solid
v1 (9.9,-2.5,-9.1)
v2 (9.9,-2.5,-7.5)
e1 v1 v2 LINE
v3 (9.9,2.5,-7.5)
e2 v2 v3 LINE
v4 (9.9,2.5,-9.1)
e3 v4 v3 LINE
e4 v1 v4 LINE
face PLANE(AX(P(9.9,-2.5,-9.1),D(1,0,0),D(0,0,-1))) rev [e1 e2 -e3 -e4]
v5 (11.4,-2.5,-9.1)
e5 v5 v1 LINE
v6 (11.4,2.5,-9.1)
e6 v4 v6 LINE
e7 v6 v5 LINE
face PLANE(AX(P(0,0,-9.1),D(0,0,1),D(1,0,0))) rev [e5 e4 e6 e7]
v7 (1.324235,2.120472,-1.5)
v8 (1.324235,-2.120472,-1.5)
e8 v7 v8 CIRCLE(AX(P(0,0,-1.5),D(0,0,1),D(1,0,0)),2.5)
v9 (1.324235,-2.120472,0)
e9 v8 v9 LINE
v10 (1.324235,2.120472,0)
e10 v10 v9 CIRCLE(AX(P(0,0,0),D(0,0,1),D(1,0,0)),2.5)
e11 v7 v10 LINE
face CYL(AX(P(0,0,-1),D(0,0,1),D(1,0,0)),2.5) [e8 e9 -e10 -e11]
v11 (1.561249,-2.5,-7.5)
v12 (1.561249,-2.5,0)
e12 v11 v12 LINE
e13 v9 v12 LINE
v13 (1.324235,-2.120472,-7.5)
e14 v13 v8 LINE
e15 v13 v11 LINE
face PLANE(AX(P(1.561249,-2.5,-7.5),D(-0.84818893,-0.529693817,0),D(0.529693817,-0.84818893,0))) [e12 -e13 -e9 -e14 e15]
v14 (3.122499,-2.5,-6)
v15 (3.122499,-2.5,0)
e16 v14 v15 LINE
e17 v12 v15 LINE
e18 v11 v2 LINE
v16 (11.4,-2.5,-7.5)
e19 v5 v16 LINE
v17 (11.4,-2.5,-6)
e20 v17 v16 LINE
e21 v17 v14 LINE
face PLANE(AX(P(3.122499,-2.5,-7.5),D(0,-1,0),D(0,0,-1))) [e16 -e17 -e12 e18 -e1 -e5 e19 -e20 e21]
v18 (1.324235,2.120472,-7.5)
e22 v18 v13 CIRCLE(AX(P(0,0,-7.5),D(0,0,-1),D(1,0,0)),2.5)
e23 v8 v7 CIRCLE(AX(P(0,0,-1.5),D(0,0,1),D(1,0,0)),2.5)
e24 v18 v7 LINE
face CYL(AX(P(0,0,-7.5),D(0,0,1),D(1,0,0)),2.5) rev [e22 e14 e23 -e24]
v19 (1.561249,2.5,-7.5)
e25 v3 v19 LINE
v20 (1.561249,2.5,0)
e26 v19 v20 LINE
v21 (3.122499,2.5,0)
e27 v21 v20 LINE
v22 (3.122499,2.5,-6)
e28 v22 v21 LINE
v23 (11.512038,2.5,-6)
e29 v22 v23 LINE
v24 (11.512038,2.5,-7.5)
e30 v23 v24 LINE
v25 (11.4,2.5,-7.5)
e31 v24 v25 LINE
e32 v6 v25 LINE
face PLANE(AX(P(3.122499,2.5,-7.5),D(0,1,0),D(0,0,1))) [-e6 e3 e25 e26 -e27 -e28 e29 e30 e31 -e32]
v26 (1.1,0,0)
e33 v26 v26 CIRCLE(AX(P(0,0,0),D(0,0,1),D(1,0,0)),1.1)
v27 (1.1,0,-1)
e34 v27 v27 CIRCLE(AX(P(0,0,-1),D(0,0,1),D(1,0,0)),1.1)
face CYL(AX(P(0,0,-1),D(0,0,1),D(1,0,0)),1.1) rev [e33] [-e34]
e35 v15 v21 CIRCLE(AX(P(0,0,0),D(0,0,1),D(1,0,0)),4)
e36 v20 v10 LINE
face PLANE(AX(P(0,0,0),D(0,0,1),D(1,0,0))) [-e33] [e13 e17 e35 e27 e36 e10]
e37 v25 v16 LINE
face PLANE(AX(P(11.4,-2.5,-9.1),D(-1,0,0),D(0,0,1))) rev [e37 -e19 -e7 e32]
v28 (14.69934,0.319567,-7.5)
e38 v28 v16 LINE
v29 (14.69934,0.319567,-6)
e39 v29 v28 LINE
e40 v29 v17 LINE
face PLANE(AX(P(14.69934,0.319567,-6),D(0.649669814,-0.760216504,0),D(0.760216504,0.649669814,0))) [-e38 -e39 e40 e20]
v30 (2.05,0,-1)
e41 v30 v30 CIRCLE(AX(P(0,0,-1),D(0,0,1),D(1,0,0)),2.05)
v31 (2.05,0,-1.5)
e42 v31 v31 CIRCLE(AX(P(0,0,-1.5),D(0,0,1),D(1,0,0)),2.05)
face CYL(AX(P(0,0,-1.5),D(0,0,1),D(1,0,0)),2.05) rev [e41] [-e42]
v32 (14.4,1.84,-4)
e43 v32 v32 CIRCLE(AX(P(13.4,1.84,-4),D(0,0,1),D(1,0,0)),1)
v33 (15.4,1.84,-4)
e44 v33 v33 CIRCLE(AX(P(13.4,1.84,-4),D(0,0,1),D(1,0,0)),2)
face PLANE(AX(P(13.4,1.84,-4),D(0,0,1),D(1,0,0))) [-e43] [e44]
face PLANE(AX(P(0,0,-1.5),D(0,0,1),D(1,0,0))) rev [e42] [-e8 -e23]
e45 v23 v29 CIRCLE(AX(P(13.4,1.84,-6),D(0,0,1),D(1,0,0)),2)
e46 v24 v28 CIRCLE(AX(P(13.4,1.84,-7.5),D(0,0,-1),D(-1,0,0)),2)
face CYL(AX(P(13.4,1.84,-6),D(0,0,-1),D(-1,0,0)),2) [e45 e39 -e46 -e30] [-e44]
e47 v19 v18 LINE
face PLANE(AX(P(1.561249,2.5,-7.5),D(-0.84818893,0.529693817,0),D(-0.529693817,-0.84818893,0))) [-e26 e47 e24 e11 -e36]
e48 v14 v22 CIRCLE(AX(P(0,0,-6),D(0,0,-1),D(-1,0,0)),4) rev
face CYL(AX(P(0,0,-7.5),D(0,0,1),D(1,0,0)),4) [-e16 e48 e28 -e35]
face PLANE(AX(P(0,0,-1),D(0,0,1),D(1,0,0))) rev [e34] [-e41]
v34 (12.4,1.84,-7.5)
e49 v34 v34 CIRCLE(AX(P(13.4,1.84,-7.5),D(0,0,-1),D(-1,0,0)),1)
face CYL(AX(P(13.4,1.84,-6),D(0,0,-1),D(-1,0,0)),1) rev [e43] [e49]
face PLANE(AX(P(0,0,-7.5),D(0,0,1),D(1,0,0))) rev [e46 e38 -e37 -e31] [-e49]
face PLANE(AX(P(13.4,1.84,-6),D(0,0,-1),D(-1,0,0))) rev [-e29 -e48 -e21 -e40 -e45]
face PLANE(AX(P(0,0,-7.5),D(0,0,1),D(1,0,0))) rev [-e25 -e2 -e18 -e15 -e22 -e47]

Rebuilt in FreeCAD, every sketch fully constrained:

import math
import FreeCAD as App
import Part
import Sketcher

V = App.Vector
Q = App.Units.Quantity


def add_polygon(sketch, points):
    """Adds a closed chain of lines whose ends are joined by coincident constraints."""
    first, n = sketch.GeometryCount, len(points)
    for a, b in zip(points, points[1:] + points[:1]):
        sketch.addGeometry(Part.LineSegment(App.Vector(*a, 0), App.Vector(*b, 0)), False)
    for i in range(n):
        sketch.addConstraint(Sketcher.Constraint("Coincident", first + i, 2, first + (i + 1) % n, 1))

doc = App.newDocument("Part")
params = doc.addObject("Spreadsheet::Sheet", "Params")
for row, (alias, value) in enumerate([
    ("sketch1_diameter", "5 mm"),
    ("sketch1_diameter2", "2.2 mm"),
    ("pad1_length", "1 mm"),
    ("sketch2_diameter", "5 mm"),
    ("sketch2_diameter2", "4.1 mm"),
    ("pad2_length", "0.5 mm"),
    ("sketch3_radius", "4 mm"),
    ("sketch3_radius2", "2.5 mm"),
    ("pad3_length", "7.5 mm"),
    ("sketch4_diameter", "2 mm"),
    ("sketch4_radius", "2 mm"),
    ("sketch4_height", "5 mm"),
    ("sketch4_length", "4.34 mm"),
    ("pad4_length", "1.5 mm"),
    ("sketch5_height", "5 mm"),
    ("sketch5_width", "1.5 mm"),
    ("pad5_length", "1.6 mm"),
    ("sketch6_diameter", "4 mm"),
    ("sketch6_diameter2", "2 mm"),
    ("pad6_length", "2 mm"),
], start=1):
    params.set(f"A{row}", alias)
    params.set(f"B{row}", "=" + value)
    params.setAlias(f"B{row}", alias)

body = doc.addObject("PartDesign::Body", "Body")

sketch1 = body.newObject("Sketcher::SketchObject", "Sketch")
sketch1.AttachmentSupport = (doc.getObject("XY_Plane"), [""])
sketch1.MapMode = "FlatFace"
sketch1.addGeometry([
    Part.Circle(V(0, 0, 0), V(0, 0, 1), 2.5),
    Part.Circle(V(0, 0, 0), V(0, 0, 1), 1.1),
], False)
sketch1.addConstraint([
    Sketcher.Constraint("Coincident", 0, 3, -1, 1),
    Sketcher.Constraint("Coincident", 1, 3, -1, 1),
    Sketcher.Constraint("Diameter", 0, Q("5 mm")),
    Sketcher.Constraint("Diameter", 1, Q("2.2 mm")),
])
sketch1.setExpression("Constraints[2]", "Params.sketch1_diameter")
sketch1.setExpression("Constraints[3]", "Params.sketch1_diameter2")
pad1 = body.newObject("PartDesign::Pad", "Pad")
pad1.Profile = sketch1
pad1.setExpression("Length", "Params.pad1_length")
pad1.Reversed = True

sketch2 = body.newObject("Sketcher::SketchObject", "Sketch001")
sketch2.AttachmentSupport = (doc.getObject("XY_Plane"), [""])
sketch2.MapMode = "FlatFace"
sketch2.AttachmentOffset = App.Placement(V(0, 0, -1), App.Rotation())
sketch2.addGeometry([
    Part.Circle(V(0, 0, 0), V(0, 0, 1), 2.5),
    Part.Circle(V(0, 0, 0), V(0, 0, 1), 2),
], False)
sketch2.addConstraint([
    Sketcher.Constraint("Coincident", 0, 3, -1, 1),
    Sketcher.Constraint("Coincident", 1, 3, -1, 1),
    Sketcher.Constraint("Diameter", 0, Q("5 mm")),
    Sketcher.Constraint("Diameter", 1, Q("4.1 mm")),
])
sketch2.setExpression("Constraints[2]", "Params.sketch2_diameter")
sketch2.setExpression("Constraints[3]", "Params.sketch2_diameter2")
pad2 = body.newObject("PartDesign::Pad", "Pad001")
pad2.Profile = sketch2
pad2.setExpression("Length", "Params.pad2_length")
pad2.Reversed = True

sketch3 = body.newObject("Sketcher::SketchObject", "Sketch002")
sketch3.AttachmentSupport = (doc.getObject("XY_Plane"), [""])
sketch3.MapMode = "FlatFace"
sketch3.addGeometry([
    Part.LineSegment(V(1.56, -2.5, 0), V(3.12, -2.5, 0)),
    Part.ArcOfCircle(Part.Circle(V(0, 0, 0), V(0, 0, 1), 4), math.radians(-39), math.radians(39)),
    Part.LineSegment(V(3.12, 2.5, 0), V(1.56, 2.5, 0)),
    Part.LineSegment(V(1.56, 2.5, 0), V(1.32, 2.12, 0)),
    Part.ArcOfCircle(Part.Circle(V(0, 0, 0), V(0, 0, 1), 2.5), math.radians(-58), math.radians(58)),
    Part.LineSegment(V(1.32, -2.12, 0), V(1.56, -2.5, 0)),
], False)
sketch3.addConstraint([
    Sketcher.Constraint("Coincident", 0, 2, 1, 1),
    Sketcher.Constraint("Coincident", 1, 2, 2, 1),
    Sketcher.Constraint("Coincident", 2, 2, 3, 1),
    Sketcher.Constraint("Coincident", 3, 2, 4, 2),
    Sketcher.Constraint("Coincident", 4, 1, 5, 1),
    Sketcher.Constraint("Coincident", 5, 2, 0, 1),
    Sketcher.Constraint("Horizontal", 0),
    Sketcher.Constraint("Horizontal", 2),
    Sketcher.Constraint("Coincident", 1, 3, -1, 1),
    Sketcher.Constraint("Coincident", 4, 3, -1, 1),
    Sketcher.Constraint("Symmetric", 2, 2, 5, 2, -1),
    Sketcher.Constraint("Vertical", 3, 2, 4, 1),
    Sketcher.Constraint("Radius", 1, Q("4 mm")),
    Sketcher.Constraint("Radius", 4, Q("2.5 mm")),
    Sketcher.Constraint("DistanceY", 0, 2, 1, 2, Q("5 mm")),
    Sketcher.Constraint("DistanceX", 0, 1, 0, 2, Q("1.561249 mm")),
    Sketcher.Constraint("DistanceX", -1, 1, 3, 2, Q("1.324235 mm")),
])
sketch3.setExpression("Constraints[12]", "Params.sketch3_radius")
sketch3.setExpression("Constraints[13]", "Params.sketch3_radius2")
pad3 = body.newObject("PartDesign::Pad", "Pad002")
pad3.Profile = sketch3
pad3.setExpression("Length", "Params.pad3_length")
pad3.Reversed = True

sketch4 = body.newObject("Sketcher::SketchObject", "Sketch003")
sketch4.AttachmentSupport = (doc.getObject("XY_Plane"), [""])
sketch4.MapMode = "FlatFace"
sketch4.AttachmentOffset = App.Placement(V(0, 0, -7.5), App.Rotation())
sketch4.addGeometry([
    Part.LineSegment(V(11.4, -2.5, 0), V(3.1, -2.5, 0)),
    Part.LineSegment(V(3.1, -2.5, 0), V(3.1, 2.5, 0)),
    Part.LineSegment(V(3.1, 2.5, 0), V(11.5, 2.5, 0)),
    Part.ArcOfCircle(Part.Circle(V(13.4, 1.8, 0), V(0, 0, 1), 2), math.radians(-49), math.radians(161)),
    Part.LineSegment(V(14.7, 0.3, 0), V(11.4, -2.5, 0)),
    Part.Circle(V(13.4, 1.8, 0), V(0, 0, 1), 1),
], False)
sketch4.addConstraint([
    Sketcher.Constraint("Coincident", 0, 2, 1, 1),
    Sketcher.Constraint("Coincident", 1, 2, 2, 1),
    Sketcher.Constraint("Coincident", 2, 2, 3, 2),
    Sketcher.Constraint("Tangent", 3, 1, 4, 1),
    Sketcher.Constraint("Coincident", 4, 2, 0, 1),
    Sketcher.Constraint("Horizontal", 0),
    Sketcher.Constraint("Vertical", 1),
    Sketcher.Constraint("Horizontal", 2),
    Sketcher.Constraint("Coincident", 5, 3, 3, 3),
    Sketcher.Constraint("Diameter", 5, Q("2 mm")),
    Sketcher.Constraint("Radius", 3, Q("2 mm")),
    Sketcher.Constraint("DistanceY", 1, 1, 1, 2, Q("5 mm")),
    Sketcher.Constraint("DistanceX", 4, 2, 3, 3, Q("2 mm")),
    Sketcher.Constraint("DistanceX", -1, 1, 3, 3, Q("13.4 mm")),
    Sketcher.Constraint("DistanceY", 0, 2, -1, 1, Q("2.5 mm")),
    Sketcher.Constraint("Distance", 4, Q("4.34 mm")),
    Sketcher.Constraint("DistanceX", 0, 2, 0, 1, Q("8.277501 mm")),
])
sketch4.setExpression("Constraints[9]", "Params.sketch4_diameter")
sketch4.setExpression("Constraints[10]", "Params.sketch4_radius")
sketch4.setExpression("Constraints[11]", "Params.sketch4_height")
sketch4.setExpression("Constraints[15]", "Params.sketch4_length")
pad4 = body.newObject("PartDesign::Pad", "Pad003")
pad4.Profile = sketch4
pad4.setExpression("Length", "Params.pad4_length")

sketch5 = body.newObject("Sketcher::SketchObject", "Sketch004")
sketch5.AttachmentSupport = (doc.getObject("XY_Plane"), [""])
sketch5.MapMode = "FlatFace"
sketch5.AttachmentOffset = App.Placement(V(0, 0, -7.5), App.Rotation())
add_polygon(sketch5, [(11.4, 2.5), (11.4, -2.5), (9.9, -2.5), (9.9, 2.5)])
sketch5.addConstraint([
    Sketcher.Constraint("Vertical", 0),
    Sketcher.Constraint("Horizontal", 1),
    Sketcher.Constraint("Vertical", 2),
    Sketcher.Constraint("Horizontal", 3),
    Sketcher.Constraint("DistanceY", 0, 2, 0, 1, Q("5 mm")),
    Sketcher.Constraint("DistanceX", 1, 2, 1, 1, Q("1.5 mm")),
    Sketcher.Constraint("DistanceX", -1, 1, 0, 2, Q("11.4 mm")),
    Sketcher.Constraint("DistanceY", 0, 2, -1, 1, Q("2.5 mm")),
])
sketch5.setExpression("Constraints[8]", "Params.sketch5_height")
sketch5.setExpression("Constraints[9]", "Params.sketch5_width")
pad5 = body.newObject("PartDesign::Pad", "Pad004")
pad5.Profile = sketch5
pad5.setExpression("Length", "Params.pad5_length")
pad5.Reversed = True

sketch6 = body.newObject("Sketcher::SketchObject", "Sketch005")
sketch6.AttachmentSupport = (doc.getObject("XY_Plane"), [""])
sketch6.MapMode = "FlatFace"
sketch6.AttachmentOffset = App.Placement(V(0, 0, -6), App.Rotation())
sketch6.addGeometry([
    Part.Circle(V(13.4, 1.8, 0), V(0, 0, 1), 2),
    Part.Circle(V(13.4, 1.8, 0), V(0, 0, 1), 1),
], False)
sketch6.addConstraint([
    Sketcher.Constraint("Coincident", 1, 3, 0, 3),
    Sketcher.Constraint("Diameter", 0, Q("4 mm")),
    Sketcher.Constraint("Diameter", 1, Q("2 mm")),
    Sketcher.Constraint("DistanceX", -1, 1, 0, 3, Q("13.4 mm")),
    Sketcher.Constraint("DistanceY", -1, 1, 0, 3, Q("1.84 mm")),
])
sketch6.setExpression("Constraints[1]", "Params.sketch6_diameter")
sketch6.setExpression("Constraints[2]", "Params.sketch6_diameter2")
pad6 = body.newObject("PartDesign::Pad", "Pad005")
pad6.Profile = sketch6
pad6.setExpression("Length", "Params.pad6_length")

doc.recompute()
